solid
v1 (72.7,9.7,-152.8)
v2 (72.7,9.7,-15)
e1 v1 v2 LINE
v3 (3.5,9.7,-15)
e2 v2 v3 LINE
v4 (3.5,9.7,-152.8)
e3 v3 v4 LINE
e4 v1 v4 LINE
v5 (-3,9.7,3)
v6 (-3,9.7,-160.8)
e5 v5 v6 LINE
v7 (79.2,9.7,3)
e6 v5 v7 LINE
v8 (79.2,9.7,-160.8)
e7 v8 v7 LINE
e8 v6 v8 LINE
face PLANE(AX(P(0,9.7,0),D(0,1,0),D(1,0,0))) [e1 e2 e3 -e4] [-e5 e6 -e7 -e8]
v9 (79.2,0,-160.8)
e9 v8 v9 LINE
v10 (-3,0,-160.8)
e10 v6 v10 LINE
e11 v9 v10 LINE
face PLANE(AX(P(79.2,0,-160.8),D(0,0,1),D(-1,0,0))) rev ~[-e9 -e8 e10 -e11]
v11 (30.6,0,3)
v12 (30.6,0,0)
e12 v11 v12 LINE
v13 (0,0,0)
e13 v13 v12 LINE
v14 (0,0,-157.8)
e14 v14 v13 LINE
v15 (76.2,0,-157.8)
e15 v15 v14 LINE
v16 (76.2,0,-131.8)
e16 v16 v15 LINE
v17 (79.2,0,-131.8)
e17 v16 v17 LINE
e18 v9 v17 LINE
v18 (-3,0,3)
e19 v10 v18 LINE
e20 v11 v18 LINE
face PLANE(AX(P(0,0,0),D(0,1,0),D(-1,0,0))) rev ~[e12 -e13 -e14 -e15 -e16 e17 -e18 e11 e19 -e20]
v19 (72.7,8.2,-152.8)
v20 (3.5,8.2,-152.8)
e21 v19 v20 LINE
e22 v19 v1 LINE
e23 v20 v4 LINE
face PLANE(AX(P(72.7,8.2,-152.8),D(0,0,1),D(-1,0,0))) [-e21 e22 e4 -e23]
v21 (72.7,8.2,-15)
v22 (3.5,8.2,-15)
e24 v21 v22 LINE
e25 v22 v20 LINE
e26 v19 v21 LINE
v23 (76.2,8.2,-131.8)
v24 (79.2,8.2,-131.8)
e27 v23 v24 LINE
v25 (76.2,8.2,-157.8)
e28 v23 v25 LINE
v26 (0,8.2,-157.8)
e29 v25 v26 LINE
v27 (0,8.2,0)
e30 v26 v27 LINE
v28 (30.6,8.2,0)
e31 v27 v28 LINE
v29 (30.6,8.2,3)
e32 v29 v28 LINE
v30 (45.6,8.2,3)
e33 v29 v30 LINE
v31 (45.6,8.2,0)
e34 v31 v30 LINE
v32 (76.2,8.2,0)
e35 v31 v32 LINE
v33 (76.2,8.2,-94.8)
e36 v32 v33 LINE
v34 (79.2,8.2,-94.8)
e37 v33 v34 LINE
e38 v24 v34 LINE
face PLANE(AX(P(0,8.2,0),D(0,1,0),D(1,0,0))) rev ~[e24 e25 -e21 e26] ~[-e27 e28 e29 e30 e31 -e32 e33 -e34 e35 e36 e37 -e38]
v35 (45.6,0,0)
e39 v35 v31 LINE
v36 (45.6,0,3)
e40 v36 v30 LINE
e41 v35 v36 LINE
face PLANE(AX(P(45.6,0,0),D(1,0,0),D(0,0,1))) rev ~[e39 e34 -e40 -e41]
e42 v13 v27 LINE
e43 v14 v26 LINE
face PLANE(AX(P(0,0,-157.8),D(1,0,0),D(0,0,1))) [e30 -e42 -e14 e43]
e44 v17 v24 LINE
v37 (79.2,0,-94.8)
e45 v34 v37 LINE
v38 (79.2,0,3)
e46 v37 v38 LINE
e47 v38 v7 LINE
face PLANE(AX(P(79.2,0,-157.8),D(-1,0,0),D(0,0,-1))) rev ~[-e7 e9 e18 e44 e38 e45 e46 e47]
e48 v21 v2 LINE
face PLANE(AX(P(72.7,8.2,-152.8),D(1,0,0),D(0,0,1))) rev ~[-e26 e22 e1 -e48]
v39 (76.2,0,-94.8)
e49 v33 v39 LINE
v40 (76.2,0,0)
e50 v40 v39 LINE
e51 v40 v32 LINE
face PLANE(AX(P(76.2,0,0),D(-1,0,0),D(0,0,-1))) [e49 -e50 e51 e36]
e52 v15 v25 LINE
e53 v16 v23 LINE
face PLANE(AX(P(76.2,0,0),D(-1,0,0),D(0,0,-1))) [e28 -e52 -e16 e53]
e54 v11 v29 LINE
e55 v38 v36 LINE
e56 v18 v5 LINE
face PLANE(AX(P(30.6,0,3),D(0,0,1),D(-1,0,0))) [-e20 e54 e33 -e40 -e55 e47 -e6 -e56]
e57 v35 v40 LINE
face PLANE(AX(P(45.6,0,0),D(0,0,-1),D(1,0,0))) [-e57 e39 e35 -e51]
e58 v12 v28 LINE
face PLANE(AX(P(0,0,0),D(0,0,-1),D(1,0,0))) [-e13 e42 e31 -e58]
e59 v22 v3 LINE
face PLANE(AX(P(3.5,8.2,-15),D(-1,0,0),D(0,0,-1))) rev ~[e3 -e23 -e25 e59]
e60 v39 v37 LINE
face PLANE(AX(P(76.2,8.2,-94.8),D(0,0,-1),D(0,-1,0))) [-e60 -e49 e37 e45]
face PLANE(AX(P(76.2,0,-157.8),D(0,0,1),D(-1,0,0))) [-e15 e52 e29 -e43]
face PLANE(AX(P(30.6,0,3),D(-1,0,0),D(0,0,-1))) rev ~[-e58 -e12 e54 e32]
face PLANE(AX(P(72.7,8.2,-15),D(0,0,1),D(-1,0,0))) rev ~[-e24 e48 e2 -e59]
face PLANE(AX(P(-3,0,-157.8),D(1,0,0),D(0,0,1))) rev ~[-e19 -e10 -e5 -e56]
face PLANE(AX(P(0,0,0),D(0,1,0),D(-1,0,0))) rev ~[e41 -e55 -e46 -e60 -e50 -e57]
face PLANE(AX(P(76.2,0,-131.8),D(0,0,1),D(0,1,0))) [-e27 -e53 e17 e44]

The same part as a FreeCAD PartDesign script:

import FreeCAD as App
import Part
import Sketcher
from FreeCAD import Vector

doc = App.newDocument("Part")
body = doc.addObject("PartDesign::Body", "Body")

# Sketch on XZ plane
sketch1 = doc.addObject("Sketcher::SketchObject", "Sketch")
body.addObject(sketch1)
sketch1.AttachmentSupport = (doc.XZ_Plane, [""])
sketch1.MapMode = "FlatFace"
sketch1.addGeometry(Part.LineSegment(Vector(-3, 3, 0), Vector(30.6, 3, 0)), False)
sketch1.addGeometry(Part.LineSegment(Vector(30.6, 3, 0), Vector(30.6, 0, 0)), False)
sketch1.addGeometry(Part.LineSegment(Vector(30.6, 0, 0), Vector(0, 0, 0)), False)
sketch1.addGeometry(Part.LineSegment(Vector(0, 0, 0), Vector(0, -157.8, 0)), False)
sketch1.addGeometry(Part.LineSegment(Vector(0, -157.8, 0), Vector(76.2, -157.8, 0)), False)
sketch1.addGeometry(Part.LineSegment(Vector(76.2, -157.8, 0), Vector(76.2, 0, 0)), False)
sketch1.addGeometry(Part.LineSegment(Vector(76.2, 0, 0), Vector(45.6, 0, 0)), False)
sketch1.addGeometry(Part.LineSegment(Vector(45.6, 0, 0), Vector(45.6, 3, 0)), False)
sketch1.addGeometry(Part.LineSegment(Vector(45.6, 3, 0), Vector(79.2, 3, 0)), False)
sketch1.addGeometry(Part.LineSegment(Vector(79.2, 3, 0), Vector(79.2, -160.8, 0)), False)
sketch1.addGeometry(Part.LineSegment(Vector(79.2, -160.8, 0), Vector(-3, -160.8, 0)), False)
sketch1.addGeometry(Part.LineSegment(Vector(-3, -160.8, 0), Vector(-3, 3, 0)), False)
sketch1.addConstraint(Sketcher.Constraint("Coincident", 0, 2, 1, 1))
sketch1.addConstraint(Sketcher.Constraint("Coincident", 1, 2, 2, 1))
sketch1.addConstraint(Sketcher.Constraint("Coincident", 2, 2, 3, 1))
sketch1.addConstraint(Sketcher.Constraint("Coincident", 3, 2, 4, 1))
sketch1.addConstraint(Sketcher.Constraint("Coincident", 4, 2, 5, 1))
sketch1.addConstraint(Sketcher.Constraint("Coincident", 5, 2, 6, 1))
sketch1.addConstraint(Sketcher.Constraint("Coincident", 6, 2, 7, 1))
sketch1.addConstraint(Sketcher.Constraint("Coincident", 7, 2, 8, 1))
sketch1.addConstraint(Sketcher.Constraint("Coincident", 8, 2, 9, 1))
sketch1.addConstraint(Sketcher.Constraint("Coincident", 9, 2, 10, 1))
sketch1.addConstraint(Sketcher.Constraint("Coincident", 10, 2, 11, 1))
sketch1.addConstraint(Sketcher.Constraint("Coincident", 11, 2, 0, 1))
sketch1.addConstraint(Sketcher.Constraint("Horizontal", 0))
sketch1.addConstraint(Sketcher.Constraint("Vertical", 1))
sketch1.addConstraint(Sketcher.Constraint("Horizontal", 2))
sketch1.addConstraint(Sketcher.Constraint("Vertical", 3))
sketch1.addConstraint(Sketcher.Constraint("Horizontal", 4))
sketch1.addConstraint(Sketcher.Constraint("Vertical", 5))
sketch1.addConstraint(Sketcher.Constraint("Horizontal", 6))
sketch1.addConstraint(Sketcher.Constraint("Vertical", 7))
sketch1.addConstraint(Sketcher.Constraint("Horizontal", 8))
sketch1.addConstraint(Sketcher.Constraint("Vertical", 9))
sketch1.addConstraint(Sketcher.Constraint("Horizontal", 10))
sketch1.addConstraint(Sketcher.Constraint("Vertical", 11))
sketch1.addConstraint(Sketcher.Constraint("Coincident", 2, 2, -1, 1))
sketch1.addConstraint(Sketcher.Constraint("PointOnObject", 5, 2, -1))
sketch1.addConstraint(Sketcher.Constraint("Horizontal", 0, 2, 7, 2))
sketch1.addConstraint(Sketcher.Constraint("Equal", 2, 6))
sketch1.addConstraint(Sketcher.Constraint("Equal", 0, 8))
sketch1.addConstraint(Sketcher.Constraint("DistanceY", 1, 2, 1, 1, 3.0))
sketch1.addConstraint(Sketcher.Constraint("DistanceX", 0, 1, 0, 2, 33.6))
sketch1.addConstraint(Sketcher.Constraint("DistanceX", 4, 1, 4, 2, 76.2))
sketch1.addConstraint(Sketcher.Constraint("DistanceY", 3, 2, 3, 1, 157.8))
sketch1.addConstraint(Sketcher.Constraint("DistanceX", 10, 2, -1, 1, 3.0))
sketch1.addConstraint(Sketcher.Constraint("DistanceY", 9, 2, 4, 2, 3.0))
pad1 = doc.addObject("PartDesign::Pad", "Pad")
body.addObject(pad1)
pad1.Profile = sketch1
pad1.Length = 8.2
pad1.Reversed = True

# Sketch on XZ plane
sketch2 = doc.addObject("Sketcher::SketchObject", "Sketch001")
body.addObject(sketch2)
sketch2.AttachmentSupport = (doc.XZ_Plane, [""])
sketch2.MapMode = "FlatFace"
sketch2.AttachmentOffset = App.Placement(Vector(0, 0, -8.2), App.Rotation())
sketch2.addGeometry(Part.LineSegment(Vector(-3, 3, 0), Vector(79, 3, 0)), False)
sketch2.addGeometry(Part.LineSegment(Vector(79, 3, 0), Vector(79, -161, 0)), False)
sketch2.addGeometry(Part.LineSegment(Vector(79, -161, 0), Vector(-3, -161, 0)), False)
sketch2.addGeometry(Part.LineSegment(Vector(-3, -161, 0), Vector(-3, 3, 0)), False)
sketch2.addGeometry(Part.LineSegment(Vector(73, -15, 0), Vector(4, -15, 0)), False)
sketch2.addGeometry(Part.LineSegment(Vector(4, -15, 0), Vector(4, -153, 0)), False)
sketch2.addGeometry(Part.LineSegment(Vector(4, -153, 0), Vector(73, -153, 0)), False)
sketch2.addGeometry(Part.LineSegment(Vector(73, -153, 0), Vector(73, -15, 0)), False)
sketch2.addConstraint(Sketcher.Constraint("Coincident", 0, 2, 1, 1))
sketch2.addConstraint(Sketcher.Constraint("Coincident", 1, 2, 2, 1))
sketch2.addConstraint(Sketcher.Constraint("Coincident", 2, 2, 3, 1))
sketch2.addConstraint(Sketcher.Constraint("Coincident", 3, 2, 0, 1))
sketch2.addConstraint(Sketcher.Constraint("Coincident", 4, 2, 5, 1))
sketch2.addConstraint(Sketcher.Constraint("Coincident", 5, 2, 6, 1))
sketch2.addConstraint(Sketcher.Constraint("Coincident", 6, 2, 7, 1))
sketch2.addConstraint(Sketcher.Constraint("Coincident", 7, 2, 4, 1))
sketch2.addConstraint(Sketcher.Constraint("Horizontal", 0))
sketch2.addConstraint(Sketcher.Constraint("Vertical", 1))
sketch2.addConstraint(Sketcher.Constraint("Horizontal", 2))
sketch2.addConstraint(Sketcher.Constraint("Vertical", 3))
sketch2.addConstraint(Sketcher.Constraint("Horizontal", 4))
sketch2.addConstraint(Sketcher.Constraint("Vertical", 5))
sketch2.addConstraint(Sketcher.Constraint("Horizontal", 6))
sketch2.addConstraint(Sketcher.Constraint("Vertical", 7))
sketch2.addConstraint(Sketcher.Constraint("DistanceY", 4, 2, 3, 2, 18.0))
sketch2.addConstraint(Sketcher.Constraint("DistanceY", 2, 2, 5, 2, 8.0))
sketch2.addConstraint(Sketcher.Constraint("DistanceX", 3, 2, 4, 2, 6.5))
sketch2.addConstraint(Sketcher.Constraint("DistanceX", 6, 2, 1, 2, 6.5))
sketch2.addConstraint(Sketcher.Constraint("DistanceX", 0, 1, 0, 2, 82.2))
sketch2.addConstraint(Sketcher.Constraint("DistanceY", 1, 2, 1, 1, 163.8))
sketch2.addConstraint(Sketcher.Constraint("DistanceY", -1, 1, 0, 2, 3.0))
sketch2.addConstraint(Sketcher.Constraint("DistanceX", 2, 2, -1, 1, 3.0))
pad2 = doc.addObject("PartDesign::Pad", "Pad001")
body.addObject(pad2)
pad2.Profile = sketch2
pad2.Length = 1.5
pad2.Reversed = True

# Sketch on YZ plane
sketch3 = doc.addObject("Sketcher::SketchObject", "Sketch002")
body.addObject(sketch3)
sketch3.AttachmentSupport = (doc.YZ_Plane, [""])
sketch3.MapMode = "FlatFace"
sketch3.AttachmentOffset = App.Placement(Vector(0, 0, 76.2), App.Rotation())
sketch3.addGeometry(Part.LineSegment(Vector(8, -95, 0), Vector(8, -132, 0)), False)
sketch3.addGeometry(Part.LineSegment(Vector(8, -132, 0), Vector(0, -132, 0)), False)
sketch3.addGeometry(Part.LineSegment(Vector(0, -132, 0), Vector(0, -95, 0)), False)
sketch3.addGeometry(Part.LineSegment(Vector(0, -95, 0), Vector(8, -95, 0)), False)
sketch3.addConstraint(Sketcher.Constraint("Coincident", 0, 2, 1, 1))
sketch3.addConstraint(Sketcher.Constraint("Coincident", 1, 2, 2, 1))
sketch3.addConstraint(Sketcher.Constraint("Coincident", 2, 2, 3, 1))
sketch3.addConstraint(Sketcher.Constraint("Coincident", 3, 2, 0, 1))
sketch3.addConstraint(Sketcher.Constraint("Vertical", 0))
sketch3.addConstraint(Sketcher.Constraint("Horizontal", 1))
sketch3.addConstraint(Sketcher.Constraint("Vertical", 2))
sketch3.addConstraint(Sketcher.Constraint("Horizontal", 3))
sketch3.addConstraint(Sketcher.Constraint("PointOnObject", 1, 2, -2))
sketch3.addConstraint(Sketcher.Constraint("DistanceY", 0, 2, 0, 1, 37.0))
sketch3.addConstraint(Sketcher.Constraint("DistanceX", 1, 2, 1, 1, 8.2))
sketch3.addConstraint(Sketcher.Constraint("DistanceY", 0, 2, -1, 1, 131.8))
pocket1 = doc.addObject("PartDesign::Pocket", "Pocket")
body.addObject(pocket1)
pocket1.Profile = sketch3
pocket1.Length = 8
pocket1.Reversed = True

doc.recompute()
